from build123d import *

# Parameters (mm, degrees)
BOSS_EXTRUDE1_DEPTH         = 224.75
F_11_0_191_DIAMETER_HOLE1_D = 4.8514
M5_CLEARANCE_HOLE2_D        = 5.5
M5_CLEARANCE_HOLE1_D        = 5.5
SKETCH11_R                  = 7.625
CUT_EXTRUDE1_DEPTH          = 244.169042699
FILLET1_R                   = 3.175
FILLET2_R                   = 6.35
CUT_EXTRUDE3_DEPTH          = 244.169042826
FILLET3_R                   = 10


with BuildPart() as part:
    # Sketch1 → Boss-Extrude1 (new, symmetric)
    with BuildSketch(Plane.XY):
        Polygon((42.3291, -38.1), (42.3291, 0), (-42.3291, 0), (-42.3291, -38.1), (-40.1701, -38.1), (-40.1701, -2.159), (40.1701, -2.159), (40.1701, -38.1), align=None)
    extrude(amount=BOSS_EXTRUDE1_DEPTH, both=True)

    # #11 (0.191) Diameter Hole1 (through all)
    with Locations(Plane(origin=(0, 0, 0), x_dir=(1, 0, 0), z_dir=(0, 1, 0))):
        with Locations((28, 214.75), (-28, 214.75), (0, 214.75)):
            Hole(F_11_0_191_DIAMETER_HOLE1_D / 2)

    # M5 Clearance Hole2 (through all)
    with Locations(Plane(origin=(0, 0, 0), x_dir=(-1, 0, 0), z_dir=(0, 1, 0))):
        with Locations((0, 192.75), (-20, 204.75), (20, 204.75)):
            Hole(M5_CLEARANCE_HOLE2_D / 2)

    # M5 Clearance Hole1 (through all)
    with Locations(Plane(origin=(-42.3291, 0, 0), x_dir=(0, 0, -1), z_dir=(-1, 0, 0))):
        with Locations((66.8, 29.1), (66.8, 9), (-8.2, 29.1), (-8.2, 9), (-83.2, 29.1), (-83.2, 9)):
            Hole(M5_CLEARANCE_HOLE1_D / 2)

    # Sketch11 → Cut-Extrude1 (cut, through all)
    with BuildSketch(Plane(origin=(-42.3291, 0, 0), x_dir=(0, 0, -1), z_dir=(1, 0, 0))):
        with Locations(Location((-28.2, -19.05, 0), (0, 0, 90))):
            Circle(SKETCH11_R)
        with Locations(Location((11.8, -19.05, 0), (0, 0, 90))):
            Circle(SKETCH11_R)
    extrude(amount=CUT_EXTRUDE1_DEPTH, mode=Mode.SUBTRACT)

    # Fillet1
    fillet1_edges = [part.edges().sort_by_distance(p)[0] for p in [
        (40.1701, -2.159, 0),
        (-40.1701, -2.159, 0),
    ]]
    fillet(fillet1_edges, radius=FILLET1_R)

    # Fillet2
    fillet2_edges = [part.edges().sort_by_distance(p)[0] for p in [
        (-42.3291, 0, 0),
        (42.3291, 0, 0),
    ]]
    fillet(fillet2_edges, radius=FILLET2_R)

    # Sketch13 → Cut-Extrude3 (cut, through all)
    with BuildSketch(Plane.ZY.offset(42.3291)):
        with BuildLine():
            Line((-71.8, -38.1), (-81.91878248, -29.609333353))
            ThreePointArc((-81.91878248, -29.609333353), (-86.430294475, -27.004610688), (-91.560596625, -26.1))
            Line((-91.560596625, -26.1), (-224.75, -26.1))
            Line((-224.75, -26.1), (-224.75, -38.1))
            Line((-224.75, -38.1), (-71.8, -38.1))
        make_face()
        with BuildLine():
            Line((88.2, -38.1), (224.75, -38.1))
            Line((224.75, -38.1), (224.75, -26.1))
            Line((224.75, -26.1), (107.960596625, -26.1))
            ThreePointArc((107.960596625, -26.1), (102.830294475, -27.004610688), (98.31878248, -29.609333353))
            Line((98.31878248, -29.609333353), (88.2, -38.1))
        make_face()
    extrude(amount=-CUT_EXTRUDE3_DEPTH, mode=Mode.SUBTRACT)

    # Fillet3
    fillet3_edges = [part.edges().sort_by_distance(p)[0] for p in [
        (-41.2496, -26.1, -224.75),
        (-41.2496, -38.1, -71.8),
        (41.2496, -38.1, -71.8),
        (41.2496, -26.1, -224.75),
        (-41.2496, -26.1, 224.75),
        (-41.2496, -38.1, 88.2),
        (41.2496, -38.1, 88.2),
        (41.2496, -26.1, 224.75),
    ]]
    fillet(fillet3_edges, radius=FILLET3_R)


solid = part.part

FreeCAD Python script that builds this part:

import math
import FreeCAD as App
import Part
import Sketcher

V = App.Vector
Q = App.Units.Quantity


def edges_at(feature, points):
    """Names of the edges that pass closest to the given points."""
    edges = feature.Shape.Edges
    near = lambda p: min(range(len(edges)), key=lambda i: edges[i].distToShape(Part.Vertex(*p))[0])
    return sorted({f"Edge{near(p) + 1}" for p in points})


def add_polygon(sketch, points):
    """Adds a closed chain of lines whose ends are joined by coincident constraints."""
    first, n = sketch.GeometryCount, len(points)
    for a, b in zip(points, points[1:] + points[:1]):
        sketch.addGeometry(Part.LineSegment(App.Vector(*a, 0), App.Vector(*b, 0)), False)
    for i in range(n):
        sketch.addConstraint(Sketcher.Constraint("Coincident", first + i, 2, first + (i + 1) % n, 1))

doc = App.newDocument("Part")
params = doc.addObject("Spreadsheet::Sheet", "Params")
for row, (alias, value) in enumerate([
    ("sketch1_height", "1.5 in"),
    ("sketch1_width", "3.333 in"),
    ("sketch1_width2", "0.085 in"),
    ("sketch1_height2", "1.415 in"),
    ("pad1_length", "449.5 mm"),
    ("sketch2_diameter", "0.191 in"),
    ("hole_diameter", "0.191 in"),
    ("hole2_diameter", "5.5 mm"),
    ("hole3_diameter", "5.5 mm"),
    ("fillet_radius", "0.125 in"),
    ("fillet2_radius", "0.25 in"),
    ("fillet3_radius", "10 mm"),
], start=1):
    params.set(f"A{row}", alias)
    params.set(f"B{row}", "=" + value)
    params.setAlias(f"B{row}", alias)

body = doc.addObject("PartDesign::Body", "Body")

sketch1 = doc.addObject("Sketcher::SketchObject", "Sketch")
body.addObject(sketch1)
sketch1.AttachmentSupport = (doc.XY_Plane, [""])
sketch1.MapMode = "FlatFace"
add_polygon(sketch1, [(42.3, -38.1), (42.3, 0), (-42.3, 0), (-42.3, -38.1), (-40.2, -38.1), (-40.2, -2.2), (40.2, -2.2), (40.2, -38.1)])
sketch1.addConstraint([
    Sketcher.Constraint("Vertical", 0),
    Sketcher.Constraint("Horizontal", 1),
    Sketcher.Constraint("Vertical", 2),
    Sketcher.Constraint("Horizontal", 3),
    Sketcher.Constraint("Vertical", 4),
    Sketcher.Constraint("Horizontal", 5),
    Sketcher.Constraint("Vertical", 6),
    Sketcher.Constraint("Horizontal", 7),
    Sketcher.Constraint("Symmetric", 0, 2, 1, 2, -1, 1),
    Sketcher.Constraint("Symmetric", 3, 2, 6, 2, -2),
    Sketcher.Constraint("DistanceY", 0, 1, 0, 2, Q("1.5 in")),
    Sketcher.Constraint("DistanceX", 1, 2, 1, 1, Q("3.333 in")),
    Sketcher.Constraint("DistanceX", 3, 1, 3, 2, Q("0.085 in")),
    Sketcher.Constraint("DistanceY", 4, 1, 4, 2, Q("1.415 in")),
])
sketch1.setExpression("Constraints[18]", "Params.sketch1_height")
sketch1.setExpression("Constraints[19]", "Params.sketch1_width")
sketch1.setExpression("Constraints[20]", "Params.sketch1_width2")
sketch1.setExpression("Constraints[21]", "Params.sketch1_height2")
pad1 = doc.addObject("PartDesign::Pad", "Pad")
body.addObject(pad1)
pad1.Profile = sketch1
pad1.setExpression("Length", "Params.pad1_length")
pad1.Midplane = True

sketch2 = doc.addObject("Sketcher::SketchObject", "Sketch001")
body.addObject(sketch2)
sketch2.AttachmentSupport = (doc.XZ_Plane, [""])
sketch2.MapMode = "FlatFace"
sketch2.addGeometry([
    Part.Circle(V(28, -214.8, 0), V(0, 0, 1), 2.4),
    Part.Circle(V(-28, -214.8, 0), V(0, 0, 1), 2.4),
    Part.Circle(V(0, -214.8, 0), V(0, 0, 1), 2.4),
], False)
sketch2.addConstraint([
    Sketcher.Constraint("Equal", 0, 1),
    Sketcher.Constraint("Equal", 1, 2),
    Sketcher.Constraint("Symmetric", 0, 3, 1, 3, -2),
    Sketcher.Constraint("PointOnObject", 2, 3, -2),
    Sketcher.Constraint("Horizontal", 1, 3, 2, 3),
    Sketcher.Constraint("Diameter", 0, Q("0.191 in")),
    Sketcher.Constraint("DistanceX", -1, 1, 0, 3, 28.0),
    Sketcher.Constraint("DistanceY", 0, 3, -1, 1, 214.75),
])
sketch2.setExpression("Constraints[5]", "Params.sketch2_diameter")
doc.recompute()
hole = doc.addObject("PartDesign::Hole", "Hole")
body.addObject(hole)
hole.Profile = sketch2
hole.ThreadType = "None"
hole.setExpression("Diameter", "Params.hole_diameter")
hole.DepthType = "ThroughAll"
hole.Reversed = True

sketch3 = doc.addObject("Sketcher::SketchObject", "Sketch002")
body.addObject(sketch3)
sketch3.AttachmentSupport = (doc.XZ_Plane, [""])
sketch3.MapMode = "FlatFace"
sketch3.addGeometry([
    Part.Circle(V(0, 192.8, 0), V(0, 0, 1), 2.8),
    Part.Circle(V(20, 204.8, 0), V(0, 0, 1), 2.8),
    Part.Circle(V(-20, 204.8, 0), V(0, 0, 1), 2.8),
], False)
sketch3.addConstraint([
    Sketcher.Constraint("Equal", 0, 1),
    Sketcher.Constraint("Equal", 1, 2),
    Sketcher.Constraint("Symmetric", 1, 3, 2, 3, -2),
    Sketcher.Constraint("PointOnObject", 0, 3, -2),
    Sketcher.Constraint("Diameter", 0, 5.5),
    Sketcher.Constraint("DistanceY", -1, 1, 0, 3, 192.75),
    Sketcher.Constraint("DistanceX", -1, 1, 1, 3, 20.0),
    Sketcher.Constraint("DistanceY", -1, 1, 1, 3, 204.75),
])
doc.recompute()
hole2 = doc.addObject("PartDesign::Hole", "Hole001")
body.addObject(hole2)
hole2.Profile = sketch3
hole2.ThreadType = "None"
hole2.setExpression("Diameter", "Params.hole2_diameter")
hole2.DepthType = "ThroughAll"
hole2.Reversed = True

sketch4 = doc.addObject("Sketcher::SketchObject", "Sketch003")
body.addObject(sketch4)
sketch4.AttachmentSupport = (doc.YZ_Plane, [""])
sketch4.MapMode = "FlatFace"
sketch4.AttachmentOffset = App.Placement(V(0, 0, -1.6665 * 25.4), App.Rotation())
sketch4.addGeometry([
    Part.Circle(V(-29.1, -66.8, 0), V(0, 0, 1), 2.8),
    Part.Circle(V(-9, -66.8, 0), V(0, 0, 1), 2.8),
    Part.Circle(V(-29.1, 8.2, 0), V(0, 0, 1), 2.8),
    Part.Circle(V(-9, 8.2, 0), V(0, 0, 1), 2.8),
    Part.Circle(V(-29.1, 83.2, 0), V(0, 0, 1), 2.8),
    Part.Circle(V(-9, 83.2, 0), V(0, 0, 1), 2.8),
], False)
sketch4.addConstraint([
    Sketcher.Constraint("Equal", 0, 1),
    Sketcher.Constraint("Equal", 1, 2),
    Sketcher.Constraint("Equal", 2, 3),
    Sketcher.Constraint("Equal", 3, 4),
    Sketcher.Constraint("Equal", 4, 5),
    Sketcher.Constraint("Horizontal", 0, 3, 1, 3),
    Sketcher.Constraint("Horizontal", 2, 3, 3, 3),
    Sketcher.Constraint("Horizontal", 4, 3, 5, 3),
    Sketcher.Constraint("Vertical", 0, 3, 2, 3),
    Sketcher.Constraint("Vertical", 1, 3, 3, 3),
    Sketcher.Constraint("Vertical", 2, 3, 4, 3),
    Sketcher.Constraint("Vertical", 3, 3, 5, 3),
    Sketcher.Constraint("Diameter", 0, 5.5),
    Sketcher.Constraint("DistanceX", 0, 3, -1, 1, 29.1),
    Sketcher.Constraint("DistanceY", 0, 3, -1, 1, 66.8),
    Sketcher.Constraint("DistanceX", 1, 3, -1, 1, 9.0),
    Sketcher.Constraint("DistanceY", -1, 1, 2, 3, 8.2),
    Sketcher.Constraint("DistanceY", -1, 1, 4, 3, 83.2),
])
doc.recompute()
hole3 = doc.addObject("PartDesign::Hole", "Hole002")
body.addObject(hole3)
hole3.Profile = sketch4
hole3.ThreadType = "None"
hole3.setExpression("Diameter", "Params.hole3_diameter")
hole3.DepthType = "ThroughAll"
hole3.Reversed = True

sketch5 = doc.addObject("Sketcher::SketchObject", "Sketch004")
body.addObject(sketch5)
sketch5.AttachmentSupport = (doc.YZ_Plane, [""])
sketch5.MapMode = "FlatFace"
sketch5.AttachmentOffset = App.Placement(V(0, 0, -1.6665 * 25.4), App.Rotation())
sketch5.addGeometry([
    Part.Circle(V(-19, 28, 0), V(0, 0, 1), 8),
    Part.Circle(V(-19, -12, 0), V(0, 0, 1), 8),
], False)
sketch5.addConstraint([
    Sketcher.Constraint("Equal", 0, 1),
    Sketcher.Constraint("Vertical", 0, 3, 1, 3),
    Sketcher.Constraint("Diameter", 0, 15.25),
    Sketcher.Constraint("DistanceX", 0, 3, -1, 1, Q("0.75 in")),
    Sketcher.Constraint("DistanceY", -1, 1, 0, 3, 28.2),
    Sketcher.Constraint("DistanceY", 1, 3, -1, 1, 11.8),
])
pocket1 = doc.addObject("PartDesign::Pocket", "Pocket")
body.addObject(pocket1)
pocket1.Profile = sketch5
pocket1.Type = "ThroughAll"
pocket1.Reversed = True
doc.recompute()

fillet = doc.addObject("PartDesign::Fillet", "Fillet")
body.addObject(fillet)
fillet.Base = (pocket1, edges_at(pocket1, [(40.17, -2.159, 0), (-40.17, -2.159, 0)]))
fillet.setExpression("Radius", "Params.fillet_radius")
doc.recompute()

fillet2 = doc.addObject("PartDesign::Fillet", "Fillet001")
body.addObject(fillet2)
fillet2.Base = (fillet, edges_at(fillet, [(-42.329, 0, 0), (42.329, 0, 0)]))
fillet2.setExpression("Radius", "Params.fillet2_radius")

sketch6 = doc.addObject("Sketcher::SketchObject", "Sketch005")
body.addObject(sketch6)
sketch6.AttachmentSupport = (doc.YZ_Plane, [""])
sketch6.MapMode = "FlatFace"
sketch6.AttachmentOffset = App.Placement(V(0, 0, -1.6665 * 25.4), App.Rotation())
sketch6.addGeometry([
    Part.LineSegment(V(-38, -72, 0), V(-30, -82, 0)),
    Part.ArcOfCircle(Part.Circle(V(-41, -92, 0), V(0, 0, 1), 15), math.radians(0), math.radians(40)),
    Part.LineSegment(V(-26, -92, 0), V(-26, -225, 0)),
    Part.LineSegment(V(-26, -225, 0), V(-38, -225, 0)),
    Part.LineSegment(V(-38, -225, 0), V(-38, -72, 0)),
    Part.LineSegment(V(-38, 88, 0), V(-38, 225, 0)),
    Part.LineSegment(V(-38, 225, 0), V(-26, 225, 0)),
    Part.LineSegment(V(-26, 225, 0), V(-26, 108, 0)),
    Part.ArcOfCircle(Part.Circle(V(-41, 108, 0), V(0, 0, 1), 15), math.radians(-40), math.radians(0)),
    Part.LineSegment(V(-30, 98, 0), V(-38, 88, 0)),
], False)
sketch6.addConstraint([
    Sketcher.Constraint("Tangent", 0, 2, 1, 2),
    Sketcher.Constraint("Tangent", 1, 1, 2, 1),
    Sketcher.Constraint("Coincident", 2, 2, 3, 1),
    Sketcher.Constraint("Coincident", 3, 2, 4, 1),
    Sketcher.Constraint("Coincident", 4, 2, 0, 1),
    Sketcher.Constraint("Coincident", 5, 2, 6, 1),
    Sketcher.Constraint("Coincident", 6, 2, 7, 1),
    Sketcher.Constraint("Tangent", 7, 2, 8, 2),
    Sketcher.Constraint("Tangent", 8, 1, 9, 1),
    Sketcher.Constraint("Coincident", 9, 2, 5, 1),
    Sketcher.Constraint("Vertical", 2),
    Sketcher.Constraint("Horizontal", 3),
    Sketcher.Constraint("Vertical", 4),
    Sketcher.Constraint("Vertical", 5),
    Sketcher.Constraint("Horizontal", 6),
    Sketcher.Constraint("Vertical", 7),
    Sketcher.Constraint("Equal", 1, 8),
    Sketcher.Constraint("Symmetric", 3, 2, 5, 2, -1),
    Sketcher.Constraint("Vertical", 1, 3, 8, 3),
    Sketcher.Constraint("Vertical", 0, 2, 8, 1),
    Sketcher.Constraint("Angle", 0, Q("-50 deg")),
    Sketcher.Constraint("DistanceX", 3, 2, -1, 1, Q("1.5 in")),
    Sketcher.Constraint("Radius", 1, 15.0),
    Sketcher.Constraint("DistanceX", 3, 2, 3, 1, 12.0),
    Sketcher.Constraint("DistanceY", 4, 1, 4, 2, 152.95),
    Sketcher.Constraint("DistanceY", 5, 1, 5, 2, 136.55),
    Sketcher.Constraint("DistanceY", 2, 2, -1, 1, 224.75),
])
pocket2 = doc.addObject("PartDesign::Pocket", "Pocket001")
body.addObject(pocket2)
pocket2.Profile = sketch6
pocket2.Type = "ThroughAll"
pocket2.Reversed = True
doc.recompute()

fillet3 = doc.addObject("PartDesign::Fillet", "Fillet002")
body.addObject(fillet3)
fillet3.Base = (pocket2, edges_at(pocket2, [
    (-41.25, -26.1, -224.75),
    (-41.25, -38.1, -71.8),
    (41.25, -38.1, -71.8),
    (41.25, -26.1, -224.75),
    (-41.25, -26.1, 224.75),
    (-41.25, -38.1, 88.2),
    (41.25, -38.1, 88.2),
    (41.25, -26.1, 224.75),
]))
fillet3.setExpression("Radius", "Params.fillet3_radius")

doc.recompute()
